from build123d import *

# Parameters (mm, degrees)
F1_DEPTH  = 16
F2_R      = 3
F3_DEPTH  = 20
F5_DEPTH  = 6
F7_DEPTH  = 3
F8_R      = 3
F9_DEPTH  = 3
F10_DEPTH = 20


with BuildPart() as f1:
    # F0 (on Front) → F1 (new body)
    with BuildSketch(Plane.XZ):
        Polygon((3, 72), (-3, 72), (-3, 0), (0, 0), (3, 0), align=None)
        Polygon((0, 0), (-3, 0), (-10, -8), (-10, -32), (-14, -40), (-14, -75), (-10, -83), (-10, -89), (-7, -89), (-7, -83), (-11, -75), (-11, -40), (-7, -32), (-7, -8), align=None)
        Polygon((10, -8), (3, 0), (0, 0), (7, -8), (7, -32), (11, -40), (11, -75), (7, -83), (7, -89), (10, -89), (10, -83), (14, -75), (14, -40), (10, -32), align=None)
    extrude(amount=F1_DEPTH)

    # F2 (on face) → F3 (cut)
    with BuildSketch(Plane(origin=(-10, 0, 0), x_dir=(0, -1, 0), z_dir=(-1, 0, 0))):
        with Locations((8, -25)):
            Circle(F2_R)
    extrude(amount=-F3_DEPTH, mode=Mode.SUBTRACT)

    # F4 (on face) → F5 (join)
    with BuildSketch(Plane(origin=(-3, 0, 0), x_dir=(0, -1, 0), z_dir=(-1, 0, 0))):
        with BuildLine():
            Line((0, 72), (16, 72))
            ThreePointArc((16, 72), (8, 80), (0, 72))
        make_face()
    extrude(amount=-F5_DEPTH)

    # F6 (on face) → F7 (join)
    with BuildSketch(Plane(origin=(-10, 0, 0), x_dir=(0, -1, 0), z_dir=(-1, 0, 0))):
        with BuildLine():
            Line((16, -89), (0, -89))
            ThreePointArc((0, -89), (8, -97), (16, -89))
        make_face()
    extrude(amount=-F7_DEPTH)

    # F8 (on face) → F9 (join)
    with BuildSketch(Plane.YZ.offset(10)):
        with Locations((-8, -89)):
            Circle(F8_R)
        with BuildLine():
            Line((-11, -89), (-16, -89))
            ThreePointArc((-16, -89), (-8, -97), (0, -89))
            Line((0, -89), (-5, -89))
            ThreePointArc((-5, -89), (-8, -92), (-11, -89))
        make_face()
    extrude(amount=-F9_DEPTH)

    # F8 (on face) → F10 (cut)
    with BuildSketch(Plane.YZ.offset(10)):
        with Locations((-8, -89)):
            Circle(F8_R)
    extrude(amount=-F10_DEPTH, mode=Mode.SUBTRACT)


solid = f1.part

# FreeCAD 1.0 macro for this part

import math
import FreeCAD as App
import Part
import Sketcher
Q = App.Units.Quantity

doc = App.newDocument("Part")
body = doc.addObject("PartDesign::Body", "Body")

# Sketch on XZ plane
sketch1 = doc.addObject("Sketcher::SketchObject", "Sketch")
body.addObject(sketch1)
sketch1.AttachmentSupport = (doc.XZ_Plane, [""])
sketch1.MapMode = "FlatFace"
sketch1.addGeometry([
    Part.LineSegment(App.Vector(3, 72, 0), App.Vector(-3, 72, 0)),  # 0
    Part.LineSegment(App.Vector(-3, 72, 0), App.Vector(-3, 0, 0)),  # 1
    Part.LineSegment(App.Vector(-3, 0, 0), App.Vector(-10, -8, 0)),  # 2
    Part.LineSegment(App.Vector(-10, -8, 0), App.Vector(-10, -32, 0)),  # 3
    Part.LineSegment(App.Vector(-10, -32, 0), App.Vector(-14, -40, 0)),  # 4
    Part.LineSegment(App.Vector(-14, -40, 0), App.Vector(-14, -75, 0)),  # 5
    Part.LineSegment(App.Vector(-14, -75, 0), App.Vector(-10, -83, 0)),  # 6
    Part.LineSegment(App.Vector(-10, -83, 0), App.Vector(-10, -89, 0)),  # 7
    Part.LineSegment(App.Vector(-10, -89, 0), App.Vector(-7, -89, 0)),  # 8
    Part.LineSegment(App.Vector(-7, -89, 0), App.Vector(-7, -83, 0)),  # 9
    Part.LineSegment(App.Vector(-7, -83, 0), App.Vector(-11, -75, 0)),  # 10
    Part.LineSegment(App.Vector(-11, -75, 0), App.Vector(-11, -40, 0)),  # 11
    Part.LineSegment(App.Vector(-11, -40, 0), App.Vector(-7, -32, 0)),  # 12
    Part.LineSegment(App.Vector(-7, -32, 0), App.Vector(-7, -8, 0)),  # 13
    Part.LineSegment(App.Vector(-7, -8, 0), App.Vector(0, 0, 0)),  # 14
    Part.LineSegment(App.Vector(0, 0, 0), App.Vector(7, -8, 0)),  # 15
    Part.LineSegment(App.Vector(7, -8, 0), App.Vector(7, -32, 0)),  # 16
    Part.LineSegment(App.Vector(7, -32, 0), App.Vector(11, -40, 0)),  # 17
    Part.LineSegment(App.Vector(11, -40, 0), App.Vector(11, -75, 0)),  # 18
    Part.LineSegment(App.Vector(11, -75, 0), App.Vector(7, -83, 0)),  # 19
    Part.LineSegment(App.Vector(7, -83, 0), App.Vector(7, -89, 0)),  # 20
    Part.LineSegment(App.Vector(7, -89, 0), App.Vector(10, -89, 0)),  # 21
    Part.LineSegment(App.Vector(10, -89, 0), App.Vector(10, -83, 0)),  # 22
    Part.LineSegment(App.Vector(10, -83, 0), App.Vector(14, -75, 0)),  # 23
    Part.LineSegment(App.Vector(14, -75, 0), App.Vector(14, -40, 0)),  # 24
    Part.LineSegment(App.Vector(14, -40, 0), App.Vector(10, -32, 0)),  # 25
    Part.LineSegment(App.Vector(10, -32, 0), App.Vector(10, -8, 0)),  # 26
    Part.LineSegment(App.Vector(10, -8, 0), App.Vector(3, 0, 0)),  # 27
    Part.LineSegment(App.Vector(3, 0, 0), App.Vector(3, 72, 0)),  # 28
], False)
sketch1.addConstraint([
    Sketcher.Constraint("Coincident", 0, 2, 1, 1),
    Sketcher.Constraint("Coincident", 1, 2, 2, 1),
    Sketcher.Constraint("Coincident", 2, 2, 3, 1),
    Sketcher.Constraint("Coincident", 3, 2, 4, 1),
    Sketcher.Constraint("Coincident", 4, 2, 5, 1),
    Sketcher.Constraint("Coincident", 5, 2, 6, 1),
    Sketcher.Constraint("Coincident", 6, 2, 7, 1),
    Sketcher.Constraint("Coincident", 7, 2, 8, 1),
    Sketcher.Constraint("Coincident", 8, 2, 9, 1),
    Sketcher.Constraint("Coincident", 9, 2, 10, 1),
    Sketcher.Constraint("Coincident", 10, 2, 11, 1),
    Sketcher.Constraint("Coincident", 11, 2, 12, 1),
    Sketcher.Constraint("Coincident", 12, 2, 13, 1),
    Sketcher.Constraint("Coincident", 13, 2, 14, 1),
    Sketcher.Constraint("Coincident", 14, 2, 15, 1),
    Sketcher.Constraint("Coincident", 15, 2, 16, 1),
    Sketcher.Constraint("Coincident", 16, 2, 17, 1),
    Sketcher.Constraint("Coincident", 17, 2, 18, 1),
    Sketcher.Constraint("Coincident", 18, 2, 19, 1),
    Sketcher.Constraint("Coincident", 19, 2, 20, 1),
    Sketcher.Constraint("Coincident", 20, 2, 21, 1),
    Sketcher.Constraint("Coincident", 21, 2, 22, 1),
    Sketcher.Constraint("Coincident", 22, 2, 23, 1),
    Sketcher.Constraint("Coincident", 23, 2, 24, 1),
    Sketcher.Constraint("Coincident", 24, 2, 25, 1),
    Sketcher.Constraint("Coincident", 25, 2, 26, 1),
    Sketcher.Constraint("Coincident", 26, 2, 27, 1),
    Sketcher.Constraint("Coincident", 27, 2, 28, 1),
    Sketcher.Constraint("Coincident", 28, 2, 0, 1),
    Sketcher.Constraint("Horizontal", 0),
    Sketcher.Constraint("Vertical", 1),
    Sketcher.Constraint("Vertical", 3),
    Sketcher.Constraint("Vertical", 5),
    Sketcher.Constraint("Vertical", 7),
    Sketcher.Constraint("Horizontal", 8),
    Sketcher.Constraint("Vertical", 9),
    Sketcher.Constraint("Vertical", 11),
    Sketcher.Constraint("Vertical", 13),
    Sketcher.Constraint("Vertical", 16),
    Sketcher.Constraint("Vertical", 18),
    Sketcher.Constraint("Vertical", 20),
    Sketcher.Constraint("Horizontal", 21),
    Sketcher.Constraint("Vertical", 22),
    Sketcher.Constraint("Vertical", 24),
    Sketcher.Constraint("Vertical", 26),
    Sketcher.Constraint("Vertical", 28),
    Sketcher.Constraint("Coincident", 14, 2, -1, 1),
    Sketcher.Constraint("Symmetric", 1, 2, 27, 2, -1, 1),
    Sketcher.Constraint("Symmetric", 13, 2, 15, 2, -2),
    Sketcher.Constraint("Symmetric", 11, 2, 17, 2, -2),
    Sketcher.Constraint("Symmetric", 9, 2, 19, 2, -2),
    Sketcher.Constraint("Symmetric", 7, 2, 21, 2, -2),
    Sketcher.Constraint("Symmetric", 5, 2, 23, 2, -2),
    Sketcher.Constraint("Symmetric", 3, 2, 25, 2, -2),
    Sketcher.Constraint("PointOnObject", 1, 2, -1),
    Sketcher.Constraint("Parallel", 6, 10),
    Sketcher.Constraint("Parallel", 4, 12),
    Sketcher.Constraint("Parallel", 2, 14),
    Sketcher.Constraint("Parallel", 10, 17),
    Sketcher.Constraint("Parallel", 12, 19),
    Sketcher.Constraint("Parallel", 19, 23),
    Sketcher.Constraint("Parallel", 17, 25),
    Sketcher.Constraint("Parallel", 15, 27),
    Sketcher.Constraint("Horizontal", 6, 2, 9, 2),
    Sketcher.Constraint("Horizontal", 5, 2, 10, 2),
    Sketcher.Constraint("Horizontal", 4, 2, 11, 2),
    Sketcher.Constraint("Horizontal", 3, 2, 12, 2),
    Sketcher.Constraint("Horizontal", 2, 2, 13, 2),
    Sketcher.Constraint("Horizontal", 12, 2, 16, 2),
    Sketcher.Constraint("Vertical", 3, 2, 6, 2),
    Sketcher.Constraint("Equal", 0, 7),
    Sketcher.Constraint("DistanceX", 0, 2, 0, 1, Q("6 mm")),
    Sketcher.Constraint("DistanceY", 1, 2, 1, 1, Q("72 mm")),
    Sketcher.Constraint("DistanceY", 3, 2, 3, 1, Q("24 mm")),
    Sketcher.Constraint("DistanceY", 5, 2, 5, 1, Q("35 mm")),
    Sketcher.Constraint("DistanceX", 2, 2, -1, 1, Q("10 mm")),
    Sketcher.Constraint("DistanceY", 2, 2, -1, 1, Q("8 mm")),
    Sketcher.Constraint("DistanceX", 4, 2, -1, 1, Q("14 mm")),
    Sketcher.Constraint("DistanceY", 4, 2, -1, 1, Q("40 mm")),
])
pad1 = doc.addObject("PartDesign::Pad", "Pad")
body.addObject(pad1)
pad1.Profile = sketch1
pad1.Length = 16

# Sketch on YZ plane
sketch2 = doc.addObject("Sketcher::SketchObject", "Sketch001")
body.addObject(sketch2)
sketch2.AttachmentSupport = (doc.YZ_Plane, [""])
sketch2.MapMode = "FlatFace"
sketch2.AttachmentOffset = App.Placement(App.Vector(0, 0, -10), App.Rotation())
sketch2.addGeometry(Part.Circle(App.Vector(-8, -25, 0), App.Vector(0, 0, 1), 3), False)
sketch2.addConstraint([
    Sketcher.Constraint("Diameter", 0, Q("6 mm")),
    Sketcher.Constraint("DistanceX", 0, 3, -1, 1, Q("8 mm")),
    Sketcher.Constraint("DistanceY", 0, 3, -1, 1, Q("25 mm")),
])
pocket1 = doc.addObject("PartDesign::Pocket", "Pocket")
body.addObject(pocket1)
pocket1.Profile = sketch2
pocket1.Length = 20
pocket1.Reversed = True

# Sketch on YZ plane
sketch3 = doc.addObject("Sketcher::SketchObject", "Sketch002")
body.addObject(sketch3)
sketch3.AttachmentSupport = (doc.YZ_Plane, [""])
sketch3.MapMode = "FlatFace"
sketch3.AttachmentOffset = App.Placement(App.Vector(0, 0, -3), App.Rotation())
sketch3.addGeometry([
    Part.LineSegment(App.Vector(0, 72, 0), App.Vector(-16, 72, 0)),
    Part.ArcOfCircle(Part.Circle(App.Vector(-8, 72, 0), App.Vector(0, 0, 1), 8), math.radians(0), math.radians(180)),
], False)
sketch3.addConstraint([
    Sketcher.Constraint("Coincident", 0, 1, 1, 1),
    Sketcher.Constraint("Coincident", 1, 2, 0, 2),
    Sketcher.Constraint("Horizontal", 0),
    Sketcher.Constraint("PointOnObject", 0, 1, -2),
    Sketcher.Constraint("Horizontal", 1, 3, 0, 1),
    Sketcher.Constraint("Radius", 1, Q("8 mm")),
    Sketcher.Constraint("DistanceY", -1, 1, 1, 3, Q("72 mm")),
])
pad2 = doc.addObject("PartDesign::Pad", "Pad001")
body.addObject(pad2)
pad2.Profile = sketch3
pad2.Length = 6

# Sketch on YZ plane
sketch4 = doc.addObject("Sketcher::SketchObject", "Sketch003")
body.addObject(sketch4)
sketch4.AttachmentSupport = (doc.YZ_Plane, [""])
sketch4.MapMode = "FlatFace"
sketch4.AttachmentOffset = App.Placement(App.Vector(0, 0, -10), App.Rotation())
sketch4.addGeometry([
    Part.LineSegment(App.Vector(-16, -89, 0), App.Vector(0, -89, 0)),
    Part.ArcOfCircle(Part.Circle(App.Vector(-8, -89, 0), App.Vector(0, 0, 1), 8), math.radians(180), math.radians(360)),
], False)
sketch4.addConstraint([
    Sketcher.Constraint("Coincident", 0, 1, 1, 1),
    Sketcher.Constraint("Coincident", 1, 2, 0, 2),
    Sketcher.Constraint("Horizontal", 0),
    Sketcher.Constraint("PointOnObject", 1, 2, -2),
    Sketcher.Constraint("Horizontal", 1, 3, 0, 1),
    Sketcher.Constraint("Radius", 1, Q("8 mm")),
    Sketcher.Constraint("DistanceY", 1, 3, -1, 1, Q("89 mm")),
])
pad3 = doc.addObject("PartDesign::Pad", "Pad002")
body.addObject(pad3)
pad3.Profile = sketch4
pad3.Length = 3

# Sketch on YZ plane
sketch5 = doc.addObject("Sketcher::SketchObject", "Sketch004")
body.addObject(sketch5)
sketch5.AttachmentSupport = (doc.YZ_Plane, [""])
sketch5.MapMode = "FlatFace"
sketch5.AttachmentOffset = App.Placement(App.Vector(0, 0, 10), App.Rotation())
sketch5.addGeometry([
    Part.ArcOfCircle(Part.Circle(App.Vector(-8, -89, 0), App.Vector(0, 0, 1), 3), math.radians(0), math.radians(180)),
    Part.LineSegment(App.Vector(-11, -89, 0), App.Vector(-16, -89, 0)),
    Part.ArcOfCircle(Part.Circle(App.Vector(-8, -89, 0), App.Vector(0, 0, 1), 8), math.radians(180), math.radians(360)),
    Part.LineSegment(App.Vector(0, -89, 0), App.Vector(-5, -89, 0)),
], False)
sketch5.addConstraint([
    Sketcher.Constraint("Coincident", 0, 2, 1, 1),
    Sketcher.Constraint("Coincident", 1, 2, 2, 1),
    Sketcher.Constraint("Coincident", 2, 2, 3, 1),
    Sketcher.Constraint("Coincident", 3, 2, 0, 1),
    Sketcher.Constraint("Horizontal", 1),
    Sketcher.Constraint("Horizontal", 3),
    Sketcher.Constraint("Coincident", 2, 3, 0, 3),
    Sketcher.Constraint("PointOnObject", 2, 2, -2),
    Sketcher.Constraint("Horizontal", 2, 3, 0, 2),
    Sketcher.Constraint("Horizontal", 1, 2, 2, 2),
    Sketcher.Constraint("Radius", 0, Q("3 mm")),
    Sketcher.Constraint("Radius", 2, Q("8 mm")),
    Sketcher.Constraint("DistanceY", 0, 3, -1, 1, Q("89 mm")),
])
pad4 = doc.addObject("PartDesign::Pad", "Pad003")
body.addObject(pad4)
pad4.Profile = sketch5
pad4.Length = 3
pad4.Reversed = True

# Sketch on YZ plane
sketch6 = doc.addObject("Sketcher::SketchObject", "Sketch005")
body.addObject(sketch6)
sketch6.AttachmentSupport = (doc.YZ_Plane, [""])
sketch6.MapMode = "FlatFace"
sketch6.AttachmentOffset = App.Placement(App.Vector(0, 0, 10), App.Rotation())
sketch6.addGeometry(Part.Circle(App.Vector(-8, -89, 0), App.Vector(0, 0, 1), 3), False)
sketch6.addConstraint([
    Sketcher.Constraint("Diameter", 0, Q("6 mm")),
    Sketcher.Constraint("DistanceX", 0, 3, -1, 1, Q("8 mm")),
    Sketcher.Constraint("DistanceY", 0, 3, -1, 1, Q("89 mm")),
])
pocket2 = doc.addObject("PartDesign::Pocket", "Pocket001")
body.addObject(pocket2)
pocket2.Profile = sketch6
pocket2.Length = 20

doc.recompute()
